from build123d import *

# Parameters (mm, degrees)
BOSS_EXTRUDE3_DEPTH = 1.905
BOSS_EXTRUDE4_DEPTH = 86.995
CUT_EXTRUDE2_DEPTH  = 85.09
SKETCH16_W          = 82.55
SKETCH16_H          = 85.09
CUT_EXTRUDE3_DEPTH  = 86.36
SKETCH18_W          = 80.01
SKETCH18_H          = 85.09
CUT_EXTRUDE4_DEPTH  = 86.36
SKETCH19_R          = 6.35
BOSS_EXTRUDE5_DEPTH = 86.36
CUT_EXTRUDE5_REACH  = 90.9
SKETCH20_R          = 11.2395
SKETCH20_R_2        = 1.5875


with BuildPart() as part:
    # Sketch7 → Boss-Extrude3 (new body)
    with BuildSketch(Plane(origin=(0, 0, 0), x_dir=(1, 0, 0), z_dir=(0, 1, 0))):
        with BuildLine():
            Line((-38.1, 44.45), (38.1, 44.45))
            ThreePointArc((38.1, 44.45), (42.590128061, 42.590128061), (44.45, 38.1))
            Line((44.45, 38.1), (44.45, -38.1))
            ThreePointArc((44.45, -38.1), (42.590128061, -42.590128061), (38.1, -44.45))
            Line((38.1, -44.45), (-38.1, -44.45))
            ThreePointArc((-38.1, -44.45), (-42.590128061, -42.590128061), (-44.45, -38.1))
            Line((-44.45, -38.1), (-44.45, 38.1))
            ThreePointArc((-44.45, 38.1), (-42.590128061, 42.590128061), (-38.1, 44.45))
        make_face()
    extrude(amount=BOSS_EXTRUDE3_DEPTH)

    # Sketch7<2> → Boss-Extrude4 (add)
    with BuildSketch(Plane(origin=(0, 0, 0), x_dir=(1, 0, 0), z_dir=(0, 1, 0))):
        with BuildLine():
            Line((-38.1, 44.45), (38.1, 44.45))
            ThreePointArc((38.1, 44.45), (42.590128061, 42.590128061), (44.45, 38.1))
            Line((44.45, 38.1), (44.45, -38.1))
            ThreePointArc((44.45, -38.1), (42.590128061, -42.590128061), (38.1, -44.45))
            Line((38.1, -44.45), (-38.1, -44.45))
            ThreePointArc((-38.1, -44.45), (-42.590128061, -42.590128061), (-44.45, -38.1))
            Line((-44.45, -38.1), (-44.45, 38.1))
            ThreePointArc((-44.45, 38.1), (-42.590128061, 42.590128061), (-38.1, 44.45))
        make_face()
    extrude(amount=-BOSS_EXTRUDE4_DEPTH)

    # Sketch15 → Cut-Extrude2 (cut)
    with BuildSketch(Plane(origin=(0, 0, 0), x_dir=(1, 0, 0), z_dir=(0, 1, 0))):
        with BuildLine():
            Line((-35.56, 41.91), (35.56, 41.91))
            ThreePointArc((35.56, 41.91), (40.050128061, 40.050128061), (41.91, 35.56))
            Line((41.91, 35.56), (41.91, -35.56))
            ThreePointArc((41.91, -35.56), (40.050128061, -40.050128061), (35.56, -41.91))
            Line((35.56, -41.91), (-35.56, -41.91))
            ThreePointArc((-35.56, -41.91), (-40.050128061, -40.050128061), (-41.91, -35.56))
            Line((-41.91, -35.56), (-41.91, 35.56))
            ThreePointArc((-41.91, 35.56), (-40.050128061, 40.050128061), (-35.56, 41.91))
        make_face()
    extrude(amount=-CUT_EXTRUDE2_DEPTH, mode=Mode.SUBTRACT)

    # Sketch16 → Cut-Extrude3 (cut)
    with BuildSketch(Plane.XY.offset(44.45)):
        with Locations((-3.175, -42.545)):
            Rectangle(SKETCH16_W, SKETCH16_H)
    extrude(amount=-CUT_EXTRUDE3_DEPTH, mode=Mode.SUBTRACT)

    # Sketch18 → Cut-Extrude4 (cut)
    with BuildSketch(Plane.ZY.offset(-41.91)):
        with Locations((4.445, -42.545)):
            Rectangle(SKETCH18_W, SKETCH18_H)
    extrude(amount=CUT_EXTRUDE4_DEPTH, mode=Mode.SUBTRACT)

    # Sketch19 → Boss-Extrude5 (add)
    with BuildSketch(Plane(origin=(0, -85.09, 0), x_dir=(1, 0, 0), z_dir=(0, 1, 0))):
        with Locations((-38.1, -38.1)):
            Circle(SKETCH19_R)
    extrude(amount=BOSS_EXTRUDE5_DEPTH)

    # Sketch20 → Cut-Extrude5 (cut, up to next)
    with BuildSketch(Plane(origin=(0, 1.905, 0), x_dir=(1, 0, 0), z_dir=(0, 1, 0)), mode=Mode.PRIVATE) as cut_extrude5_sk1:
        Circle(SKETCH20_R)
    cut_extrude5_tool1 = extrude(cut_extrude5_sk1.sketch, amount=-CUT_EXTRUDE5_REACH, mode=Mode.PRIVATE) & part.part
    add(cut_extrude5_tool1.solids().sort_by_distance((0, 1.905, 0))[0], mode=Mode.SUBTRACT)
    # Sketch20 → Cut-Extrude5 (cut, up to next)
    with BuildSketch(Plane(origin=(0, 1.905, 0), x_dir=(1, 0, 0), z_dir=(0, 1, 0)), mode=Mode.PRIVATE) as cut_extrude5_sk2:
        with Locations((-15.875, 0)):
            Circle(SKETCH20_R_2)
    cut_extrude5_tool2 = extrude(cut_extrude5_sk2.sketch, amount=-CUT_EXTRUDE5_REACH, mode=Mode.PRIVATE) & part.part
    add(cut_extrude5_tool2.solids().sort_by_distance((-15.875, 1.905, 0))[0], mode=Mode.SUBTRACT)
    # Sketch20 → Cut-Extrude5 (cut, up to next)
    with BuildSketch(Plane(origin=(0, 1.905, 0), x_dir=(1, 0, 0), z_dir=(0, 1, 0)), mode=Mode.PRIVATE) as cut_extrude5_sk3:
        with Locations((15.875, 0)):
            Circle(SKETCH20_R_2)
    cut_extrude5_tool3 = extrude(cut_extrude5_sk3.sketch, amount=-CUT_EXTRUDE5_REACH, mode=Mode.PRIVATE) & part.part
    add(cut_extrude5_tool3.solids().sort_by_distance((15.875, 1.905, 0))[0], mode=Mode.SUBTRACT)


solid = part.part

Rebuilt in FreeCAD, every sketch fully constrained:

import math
import FreeCAD as App
import Part
import Sketcher
Q = App.Units.Quantity

doc = App.newDocument("Part")
body = doc.addObject("PartDesign::Body", "Body")

sketch1 = body.newObject("Sketcher::SketchObject", "Sketch")
sketch1.AttachmentSupport = (doc.getObject("XZ_Plane"), [""])
sketch1.MapMode = "FlatFace"
sketch1.addGeometry([
    Part.LineSegment(App.Vector(38, -44, 0), App.Vector(-38, -44, 0)),
    Part.ArcOfCircle(Part.Circle(App.Vector(-38, -38, 0), App.Vector(0, 0, 1), 6), math.radians(180), math.radians(270)),
    Part.LineSegment(App.Vector(-44, -38, 0), App.Vector(-44, 38, 0)),
    Part.ArcOfCircle(Part.Circle(App.Vector(-38, 38, 0), App.Vector(0, 0, 1), 6), math.radians(90), math.radians(180)),
    Part.LineSegment(App.Vector(-38, 44, 0), App.Vector(38, 44, 0)),
    Part.ArcOfCircle(Part.Circle(App.Vector(38, 38, 0), App.Vector(0, 0, 1), 6), math.radians(0), math.radians(90)),
    Part.LineSegment(App.Vector(44, 38, 0), App.Vector(44, -38, 0)),
    Part.ArcOfCircle(Part.Circle(App.Vector(38, -38, 0), App.Vector(0, 0, 1), 6), math.radians(-90), math.radians(0)),
], False)
sketch1.addConstraint([
    Sketcher.Constraint("Tangent", 0, 2, 1, 2),
    Sketcher.Constraint("Tangent", 1, 1, 2, 1),
    Sketcher.Constraint("Tangent", 2, 2, 3, 2),
    Sketcher.Constraint("Tangent", 3, 1, 4, 1),
    Sketcher.Constraint("Tangent", 4, 2, 5, 2),
    Sketcher.Constraint("Tangent", 5, 1, 6, 1),
    Sketcher.Constraint("Tangent", 6, 2, 7, 2),
    Sketcher.Constraint("Tangent", 7, 1, 0, 1),
    Sketcher.Constraint("Horizontal", 0),
    Sketcher.Constraint("Vertical", 2),
    Sketcher.Constraint("Horizontal", 4),
    Sketcher.Constraint("Vertical", 6),
    Sketcher.Constraint("Equal", 1, 3),
    Sketcher.Constraint("Equal", 3, 5),
    Sketcher.Constraint("Equal", 5, 7),
    Sketcher.Constraint("Symmetric", 1, 3, 5, 3, -1, 1),
    Sketcher.Constraint("Equal", 4, 2),
    Sketcher.Constraint("DistanceX", 0, 2, 0, 1, Q("3 in")),
    Sketcher.Constraint("Radius", 1, Q("0.25 in")),
])
pad1 = body.newObject("PartDesign::Pad", "Pad")
pad1.Profile = sketch1
pad1.Length = Q("0.075 in")
pad1.Reversed = True

sketch2 = body.newObject("Sketcher::SketchObject", "Sketch001")
sketch2.AttachmentSupport = (doc.getObject("XZ_Plane"), [""])
sketch2.MapMode = "FlatFace"
sketch2.addGeometry([
    Part.LineSegment(App.Vector(38, -44, 0), App.Vector(-38, -44, 0)),
    Part.ArcOfCircle(Part.Circle(App.Vector(-38, -38, 0), App.Vector(0, 0, 1), 6), math.radians(180), math.radians(270)),
    Part.LineSegment(App.Vector(-44, -38, 0), App.Vector(-44, 38, 0)),
    Part.ArcOfCircle(Part.Circle(App.Vector(-38, 38, 0), App.Vector(0, 0, 1), 6), math.radians(90), math.radians(180)),
    Part.LineSegment(App.Vector(-38, 44, 0), App.Vector(38, 44, 0)),
    Part.ArcOfCircle(Part.Circle(App.Vector(38, 38, 0), App.Vector(0, 0, 1), 6), math.radians(0), math.radians(90)),
    Part.LineSegment(App.Vector(44, 38, 0), App.Vector(44, -38, 0)),
    Part.ArcOfCircle(Part.Circle(App.Vector(38, -38, 0), App.Vector(0, 0, 1), 6), math.radians(-90), math.radians(0)),
], False)
sketch2.addConstraint([
    Sketcher.Constraint("Tangent", 0, 2, 1, 2),
    Sketcher.Constraint("Tangent", 1, 1, 2, 1),
    Sketcher.Constraint("Tangent", 2, 2, 3, 2),
    Sketcher.Constraint("Tangent", 3, 1, 4, 1),
    Sketcher.Constraint("Tangent", 4, 2, 5, 2),
    Sketcher.Constraint("Tangent", 5, 1, 6, 1),
    Sketcher.Constraint("Tangent", 6, 2, 7, 2),
    Sketcher.Constraint("Tangent", 7, 1, 0, 1),
    Sketcher.Constraint("Horizontal", 0),
    Sketcher.Constraint("Vertical", 2),
    Sketcher.Constraint("Horizontal", 4),
    Sketcher.Constraint("Vertical", 6),
    Sketcher.Constraint("Equal", 1, 3),
    Sketcher.Constraint("Equal", 3, 5),
    Sketcher.Constraint("Equal", 5, 7),
    Sketcher.Constraint("Symmetric", 1, 3, 5, 3, -1, 1),
    Sketcher.Constraint("Equal", 4, 2),
    Sketcher.Constraint("DistanceX", 0, 2, 0, 1, Q("3 in")),
    Sketcher.Constraint("Radius", 1, Q("0.25 in")),
])
pad2 = body.newObject("PartDesign::Pad", "Pad001")
pad2.Profile = sketch2
pad2.Length = Q("3.425 in")

sketch3 = body.newObject("Sketcher::SketchObject", "Sketch002")
sketch3.AttachmentSupport = (doc.getObject("XZ_Plane"), [""])
sketch3.MapMode = "FlatFace"
sketch3.addGeometry([
    Part.LineSegment(App.Vector(36, -42, 0), App.Vector(-36, -42, 0)),
    Part.ArcOfCircle(Part.Circle(App.Vector(-36, -36, 0), App.Vector(0, 0, 1), 6), math.radians(180), math.radians(270)),
    Part.LineSegment(App.Vector(-42, -36, 0), App.Vector(-42, 36, 0)),
    Part.ArcOfCircle(Part.Circle(App.Vector(-36, 36, 0), App.Vector(0, 0, 1), 6), math.radians(90), math.radians(180)),
    Part.LineSegment(App.Vector(-36, 42, 0), App.Vector(36, 42, 0)),
    Part.ArcOfCircle(Part.Circle(App.Vector(36, 36, 0), App.Vector(0, 0, 1), 6), math.radians(0), math.radians(90)),
    Part.LineSegment(App.Vector(42, 36, 0), App.Vector(42, -36, 0)),
    Part.ArcOfCircle(Part.Circle(App.Vector(36, -36, 0), App.Vector(0, 0, 1), 6), math.radians(-90), math.radians(0)),
], False)
sketch3.addConstraint([
    Sketcher.Constraint("Tangent", 0, 2, 1, 2),
    Sketcher.Constraint("Tangent", 1, 1, 2, 1),
    Sketcher.Constraint("Tangent", 2, 2, 3, 2),
    Sketcher.Constraint("Tangent", 3, 1, 4, 1),
    Sketcher.Constraint("Tangent", 4, 2, 5, 2),
    Sketcher.Constraint("Tangent", 5, 1, 6, 1),
    Sketcher.Constraint("Tangent", 6, 2, 7, 2),
    Sketcher.Constraint("Tangent", 7, 1, 0, 1),
    Sketcher.Constraint("Horizontal", 0),
    Sketcher.Constraint("Vertical", 2),
    Sketcher.Constraint("Horizontal", 4),
    Sketcher.Constraint("Vertical", 6),
    Sketcher.Constraint("Equal", 1, 3),
    Sketcher.Constraint("Equal", 3, 5),
    Sketcher.Constraint("Equal", 5, 7),
    Sketcher.Constraint("Symmetric", 1, 3, 5, 3, -1, 1),
    Sketcher.Constraint("Equal", 4, 2),
    Sketcher.Constraint("Radius", 1, Q("0.25 in")),
    Sketcher.Constraint("DistanceX", 0, 2, 0, 1, Q("2.8 in")),
])
pocket1 = body.newObject("PartDesign::Pocket", "Pocket")
pocket1.Profile = sketch3
pocket1.Length = Q("3.35 in")
pocket1.Reversed = True

sketch4 = body.newObject("Sketcher::SketchObject", "Sketch003")
sketch4.AttachmentSupport = (doc.getObject("XY_Plane"), [""])
sketch4.MapMode = "FlatFace"
sketch4.AttachmentOffset = App.Placement(App.Vector(0, 0, 1.75 * 25.4), App.Rotation())
sketch4.addGeometry([
    Part.LineSegment(App.Vector(-44, 0, 0), App.Vector(-44, -85, 0)),
    Part.LineSegment(App.Vector(-44, -85, 0), App.Vector(38, -85, 0)),
    Part.LineSegment(App.Vector(38, -85, 0), App.Vector(38, 0, 0)),
    Part.LineSegment(App.Vector(38, 0, 0), App.Vector(-44, 0, 0)),
], False)
sketch4.addConstraint([
    Sketcher.Constraint("Coincident", 0, 2, 1, 1),
    Sketcher.Constraint("Coincident", 1, 2, 2, 1),
    Sketcher.Constraint("Coincident", 2, 2, 3, 1),
    Sketcher.Constraint("Coincident", 3, 2, 0, 1),
    Sketcher.Constraint("Vertical", 0),
    Sketcher.Constraint("Horizontal", 1),
    Sketcher.Constraint("Vertical", 2),
    Sketcher.Constraint("Horizontal", 3),
    Sketcher.Constraint("PointOnObject", 2, 2, -1),
    Sketcher.Constraint("DistanceX", 1, 1, 1, 2, Q("3.25 in")),
    Sketcher.Constraint("DistanceY", 0, 2, 0, 1, Q("3.35 in")),
    Sketcher.Constraint("DistanceX", -1, 1, 1, 2, Q("1.5 in")),
])
pocket2 = body.newObject("PartDesign::Pocket", "Pocket001")
pocket2.Profile = sketch4
pocket2.Length = Q("3.4 in")

sketch5 = body.newObject("Sketcher::SketchObject", "Sketch004")
sketch5.AttachmentSupport = (doc.getObject("YZ_Plane"), [""])
sketch5.MapMode = "FlatFace"
sketch5.AttachmentOffset = App.Placement(App.Vector(0, 0, 1.65 * 25.4), App.Rotation())
sketch5.addGeometry([
    Part.LineSegment(App.Vector(0, -36, 0), App.Vector(-85, -36, 0)),
    Part.LineSegment(App.Vector(-85, -36, 0), App.Vector(-85, 44, 0)),
    Part.LineSegment(App.Vector(-85, 44, 0), App.Vector(0, 44, 0)),
    Part.LineSegment(App.Vector(0, 44, 0), App.Vector(0, -36, 0)),
], False)
sketch5.addConstraint([
    Sketcher.Constraint("Coincident", 0, 2, 1, 1),
    Sketcher.Constraint("Coincident", 1, 2, 2, 1),
    Sketcher.Constraint("Coincident", 2, 2, 3, 1),
    Sketcher.Constraint("Coincident", 3, 2, 0, 1),
    Sketcher.Constraint("Horizontal", 0),
    Sketcher.Constraint("Vertical", 1),
    Sketcher.Constraint("Horizontal", 2),
    Sketcher.Constraint("Vertical", 3),
    Sketcher.Constraint("PointOnObject", 2, 2, -2),
    Sketcher.Constraint("DistanceX", 0, 2, 0, 1, Q("3.35 in")),
    Sketcher.Constraint("DistanceY", 1, 1, 1, 2, Q("3.15 in")),
    Sketcher.Constraint("DistanceY", 0, 2, -1, 1, Q("1.4 in")),
])
pocket3 = body.newObject("PartDesign::Pocket", "Pocket002")
pocket3.Profile = sketch5
pocket3.Length = Q("3.4 in")

sketch6 = body.newObject("Sketcher::SketchObject", "Sketch005")
sketch6.AttachmentSupport = (doc.getObject("XZ_Plane"), [""])
sketch6.MapMode = "FlatFace"
sketch6.AttachmentOffset = App.Placement(App.Vector(0, 0, 3.35 * 25.4), App.Rotation())
sketch6.addGeometry(Part.Circle(App.Vector(-38, 38, 0), App.Vector(0, 0, 1), 6), False)
sketch6.addConstraint([
    Sketcher.Constraint("Diameter", 0, Q("0.5 in")),
    Sketcher.Constraint("DistanceX", 0, 3, -1, 1, Q("1.5 in")),
    Sketcher.Constraint("DistanceY", -1, 1, 0, 3, Q("1.5 in")),
])
pad3 = body.newObject("PartDesign::Pad", "Pad002")
pad3.Profile = sketch6
pad3.Length = Q("3.4 in")
pad3.Reversed = True

sketch7 = body.newObject("Sketcher::SketchObject", "Sketch006")
sketch7.AttachmentSupport = (doc.getObject("XZ_Plane"), [""])
sketch7.MapMode = "FlatFace"
sketch7.AttachmentOffset = App.Placement(App.Vector(0, 0, -0.075 * 25.4), App.Rotation())
sketch7.addGeometry(Part.Circle(App.Vector(0, 0, 0), App.Vector(0, 0, 1), 11), False)
sketch7.addConstraint([
    Sketcher.Constraint("Coincident", 0, 3, -1, 1),
    Sketcher.Constraint("Diameter", 0, Q("0.885 in")),
])
pocket4 = body.newObject("PartDesign::Pocket", "Pocket003")
pocket4.Profile = sketch7
pocket4.Type = "UpToFirst"
pocket4.Reversed = True

sketch8 = body.newObject("Sketcher::SketchObject", "Sketch007")
sketch8.AttachmentSupport = (doc.getObject("XZ_Plane"), [""])
sketch8.MapMode = "FlatFace"
sketch8.AttachmentOffset = App.Placement(App.Vector(0, 0, -0.075 * 25.4), App.Rotation())
sketch8.addGeometry(Part.Circle(App.Vector(-15.9, 0, 0), App.Vector(0, 0, 1), 1.6), False)
sketch8.addConstraint([
    Sketcher.Constraint("PointOnObject", 0, 3, -1),
    Sketcher.Constraint("Diameter", 0, Q("0.125 in")),
    Sketcher.Constraint("DistanceX", 0, 3, -1, 1, Q("0.625 in")),
])
pocket5 = body.newObject("PartDesign::Pocket", "Pocket004")
pocket5.Profile = sketch8
pocket5.Type = "UpToFirst"
pocket5.Reversed = True

sketch9 = body.newObject("Sketcher::SketchObject", "Sketch008")
sketch9.AttachmentSupport = (doc.getObject("XZ_Plane"), [""])
sketch9.MapMode = "FlatFace"
sketch9.AttachmentOffset = App.Placement(App.Vector(0, 0, -0.075 * 25.4), App.Rotation())
sketch9.addGeometry(Part.Circle(App.Vector(15.9, 0, 0), App.Vector(0, 0, 1), 1.6), False)
sketch9.addConstraint([
    Sketcher.Constraint("PointOnObject", 0, 3, -1),
    Sketcher.Constraint("Diameter", 0, Q("0.125 in")),
    Sketcher.Constraint("DistanceX", -1, 1, 0, 3, Q("0.625 in")),
])
pocket6 = body.newObject("PartDesign::Pocket", "Pocket005")
pocket6.Profile = sketch9
pocket6.Type = "UpToFirst"
pocket6.Reversed = True

doc.recompute()
